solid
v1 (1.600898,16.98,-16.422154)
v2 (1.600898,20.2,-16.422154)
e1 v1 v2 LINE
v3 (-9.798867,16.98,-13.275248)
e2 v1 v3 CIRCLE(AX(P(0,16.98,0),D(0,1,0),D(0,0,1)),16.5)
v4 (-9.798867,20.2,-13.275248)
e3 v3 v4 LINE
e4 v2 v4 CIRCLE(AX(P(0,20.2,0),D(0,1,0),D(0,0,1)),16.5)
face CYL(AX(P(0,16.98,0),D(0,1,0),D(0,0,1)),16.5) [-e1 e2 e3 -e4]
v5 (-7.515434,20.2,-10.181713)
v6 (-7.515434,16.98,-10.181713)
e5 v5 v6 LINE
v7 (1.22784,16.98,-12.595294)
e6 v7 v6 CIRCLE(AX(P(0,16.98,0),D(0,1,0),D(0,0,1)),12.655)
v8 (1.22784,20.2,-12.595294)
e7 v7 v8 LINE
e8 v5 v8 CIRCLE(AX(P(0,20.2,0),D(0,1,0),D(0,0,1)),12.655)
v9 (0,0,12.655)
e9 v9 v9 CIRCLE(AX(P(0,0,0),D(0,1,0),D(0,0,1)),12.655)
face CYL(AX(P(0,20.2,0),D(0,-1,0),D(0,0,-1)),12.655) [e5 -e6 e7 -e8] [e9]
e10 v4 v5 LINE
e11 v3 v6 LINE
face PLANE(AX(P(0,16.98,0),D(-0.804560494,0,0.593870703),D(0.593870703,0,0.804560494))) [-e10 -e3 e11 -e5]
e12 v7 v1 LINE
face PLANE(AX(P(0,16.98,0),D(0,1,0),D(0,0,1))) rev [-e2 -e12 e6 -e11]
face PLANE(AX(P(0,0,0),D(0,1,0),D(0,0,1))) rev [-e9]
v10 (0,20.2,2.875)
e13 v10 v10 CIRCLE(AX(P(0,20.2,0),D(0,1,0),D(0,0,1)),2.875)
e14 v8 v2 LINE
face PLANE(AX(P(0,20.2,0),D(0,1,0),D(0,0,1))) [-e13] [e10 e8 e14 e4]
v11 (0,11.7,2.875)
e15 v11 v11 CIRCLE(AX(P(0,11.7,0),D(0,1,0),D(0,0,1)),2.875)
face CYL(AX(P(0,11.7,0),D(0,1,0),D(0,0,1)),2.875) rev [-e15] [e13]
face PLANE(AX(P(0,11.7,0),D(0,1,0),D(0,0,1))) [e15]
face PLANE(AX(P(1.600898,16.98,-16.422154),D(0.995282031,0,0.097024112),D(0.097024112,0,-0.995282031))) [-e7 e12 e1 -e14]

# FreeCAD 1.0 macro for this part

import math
import FreeCAD as App
import Part
import Sketcher
Q = App.Units.Quantity

doc = App.newDocument("Part")
body = doc.addObject("PartDesign::Body", "Body")

# Sketch on XZ plane
sketch1 = doc.addObject("Sketcher::SketchObject", "Sketch")
body.addObject(sketch1)
sketch1.AttachmentSupport = (doc.XZ_Plane, [""])
sketch1.MapMode = "FlatFace"
sketch1.addGeometry(Part.Circle(App.Vector(0, 0, 0), App.Vector(0, 0, 1), 12.655), False)
sketch1.addConstraint(Sketcher.Constraint("Coincident", 0, 3, -1, 1))
sketch1.addConstraint(Sketcher.Constraint("Diameter", 0, Q("25.31 mm")))
pad1 = doc.addObject("PartDesign::Pad", "Pad")
body.addObject(pad1)
pad1.Profile = sketch1
pad1.Length = 20.2
pad1.Reversed = True

# Sketch on XZ plane
sketch2 = doc.addObject("Sketcher::SketchObject", "Sketch001")
body.addObject(sketch2)
sketch2.AttachmentSupport = (doc.XZ_Plane, [""])
sketch2.MapMode = "FlatFace"
sketch2.AttachmentOffset = App.Placement(App.Vector(0, 0, -20.2), App.Rotation())
sketch2.addGeometry(Part.LineSegment(App.Vector(0, 0, 0), App.Vector(1.600898, -16.422154, 0)), False)
sketch2.addGeometry(Part.ArcOfCircle(Part.Circle(App.Vector(0, 0, 0), App.Vector(0, 0, 1), 16.5), math.radians(-126.432169), math.radians(-84.432169)), False)
sketch2.addGeometry(Part.LineSegment(App.Vector(-9.798867, -13.275248, 0), App.Vector(0, 0, 0)), False)
sketch2.addConstraint(Sketcher.Constraint("Coincident", 0, 2, 1, 2))
sketch2.addConstraint(Sketcher.Constraint("Coincident", 1, 1, 2, 1))
sketch2.addConstraint(Sketcher.Constraint("Coincident", 2, 2, 0, 1))
sketch2.addConstraint(Sketcher.Constraint("Coincident", 1, 3, -1, 1))
sketch2.addConstraint(Sketcher.Constraint("Coincident", 2, 2, -1, 1))
sketch2.addConstraint(Sketcher.Constraint("Radius", 1, Q("16.5 mm")))
sketch2.addConstraint(Sketcher.Constraint("DistanceY", 1, 1, -1, 1, Q("13.275248 mm")))
sketch2.addConstraint(Sketcher.Constraint("DistanceX", -1, 1, 0, 2, Q("1.600898 mm")))
pad2 = doc.addObject("PartDesign::Pad", "Pad001")
body.addObject(pad2)
pad2.Profile = sketch2
pad2.Length = 3.22

# Sketch on XZ plane
sketch3 = doc.addObject("Sketcher::SketchObject", "Sketch002")
body.addObject(sketch3)
sketch3.AttachmentSupport = (doc.XZ_Plane, [""])
sketch3.MapMode = "FlatFace"
sketch3.AttachmentOffset = App.Placement(App.Vector(0, 0, -20.2), App.Rotation())
sketch3.addGeometry(Part.Circle(App.Vector(0, 0, 0), App.Vector(0, 0, 1), 2.875), False)
sketch3.addConstraint(Sketcher.Constraint("Coincident", 0, 3, -1, 1))
sketch3.addConstraint(Sketcher.Constraint("Diameter", 0, Q("5.75 mm")))
pocket1 = doc.addObject("PartDesign::Pocket", "Pocket")
body.addObject(pocket1)
pocket1.Profile = sketch3
pocket1.Length = 8.5
pocket1.Reversed = True

doc.recompute()
